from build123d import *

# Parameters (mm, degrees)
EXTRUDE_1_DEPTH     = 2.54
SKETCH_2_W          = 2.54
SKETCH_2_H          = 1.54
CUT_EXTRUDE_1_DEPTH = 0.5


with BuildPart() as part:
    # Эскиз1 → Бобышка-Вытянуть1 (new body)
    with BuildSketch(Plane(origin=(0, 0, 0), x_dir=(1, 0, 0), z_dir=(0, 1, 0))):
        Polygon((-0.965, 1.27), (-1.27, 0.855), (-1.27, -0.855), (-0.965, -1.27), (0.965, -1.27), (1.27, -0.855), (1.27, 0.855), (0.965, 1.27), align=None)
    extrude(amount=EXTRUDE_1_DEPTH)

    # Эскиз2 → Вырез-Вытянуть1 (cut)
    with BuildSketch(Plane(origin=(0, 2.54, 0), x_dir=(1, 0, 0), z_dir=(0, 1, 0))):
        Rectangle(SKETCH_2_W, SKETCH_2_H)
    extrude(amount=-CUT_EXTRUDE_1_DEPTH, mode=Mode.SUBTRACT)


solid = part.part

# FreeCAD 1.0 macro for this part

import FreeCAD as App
import Part
import Sketcher
from FreeCAD import Vector
Q = App.Units.Quantity

doc = App.newDocument("Part")
params = doc.addObject("Spreadsheet::Sheet", "Params")
for row, (alias, value) in enumerate([
    ("sketch1_width", "1.93 mm"),
    ("sketch1_height", "1.71 mm"),
    ("pad1_length", "2.54 mm"),
    ("sketch2_width", "2.54 mm"),
    ("sketch2_height", "1.54 mm"),
    ("pocket1_length", "0.5 mm"),
], start=1):
    params.set(f"A{row}", alias)
    params.set(f"B{row}", "=" + value)
    params.setAlias(f"B{row}", alias)

body = doc.addObject("PartDesign::Body", "Body")

# Sketch on XZ plane
sketch1 = body.newObject("Sketcher::SketchObject", "Sketch")
sketch1.AttachmentSupport = (doc.getObject("XZ_Plane"), [""])
sketch1.MapMode = "FlatFace"
sketch1.addGeometry([
    Part.LineSegment(Vector(-0.965, -1.27, 0), Vector(-1.27, -0.855, 0)),  # 0
    Part.LineSegment(Vector(-1.27, -0.855, 0), Vector(-1.27, 0.855, 0)),  # 1
    Part.LineSegment(Vector(-1.27, 0.855, 0), Vector(-0.965, 1.27, 0)),  # 2
    Part.LineSegment(Vector(-0.965, 1.27, 0), Vector(0.965, 1.27, 0)),  # 3
    Part.LineSegment(Vector(0.965, 1.27, 0), Vector(1.27, 0.855, 0)),  # 4
    Part.LineSegment(Vector(1.27, 0.855, 0), Vector(1.27, -0.855, 0)),  # 5
    Part.LineSegment(Vector(1.27, -0.855, 0), Vector(0.965, -1.27, 0)),  # 6
    Part.LineSegment(Vector(0.965, -1.27, 0), Vector(-0.965, -1.27, 0)),  # 7
], False)
sketch1.addConstraint([
    Sketcher.Constraint("Coincident", 0, 2, 1, 1),
    Sketcher.Constraint("Coincident", 1, 2, 2, 1),
    Sketcher.Constraint("Coincident", 2, 2, 3, 1),
    Sketcher.Constraint("Coincident", 3, 2, 4, 1),
    Sketcher.Constraint("Coincident", 4, 2, 5, 1),
    Sketcher.Constraint("Coincident", 5, 2, 6, 1),
    Sketcher.Constraint("Coincident", 6, 2, 7, 1),
    Sketcher.Constraint("Coincident", 7, 2, 0, 1),
    Sketcher.Constraint("Vertical", 1),
    Sketcher.Constraint("Horizontal", 3),
    Sketcher.Constraint("Vertical", 5),
    Sketcher.Constraint("Horizontal", 7),
    Sketcher.Constraint("Symmetric", 0, 2, 4, 2, -1, 1),
    Sketcher.Constraint("Symmetric", 2, 2, 6, 2, -1, 1),
    Sketcher.Constraint("Parallel", 0, 4),
    Sketcher.Constraint("Parallel", 2, 6),
    Sketcher.Constraint("Horizontal", 1, 2, 4, 2),
    Sketcher.Constraint("Vertical", 3, 2, 6, 2),
    Sketcher.Constraint("DistanceX", 3, 1, 3, 2, Q("1.93 mm")),
    Sketcher.Constraint("DistanceY", 1, 1, 1, 2, Q("1.71 mm")),
    Sketcher.Constraint("DistanceX", 0, 2, -1, 1, Q("1.27 mm")),
    Sketcher.Constraint("DistanceY", -1, 1, 2, 2, Q("1.27 mm")),
])
sketch1.setExpression("Constraints[18]", "Params.sketch1_width")
sketch1.setExpression("Constraints[19]", "Params.sketch1_height")
pad1 = body.newObject("PartDesign::Pad", "Pad")
pad1.Profile = sketch1
pad1.setExpression("Length", "Params.pad1_length")
pad1.Reversed = True

# Sketch on XZ plane
sketch2 = body.newObject("Sketcher::SketchObject", "Sketch001")
sketch2.AttachmentSupport = (doc.getObject("XZ_Plane"), [""])
sketch2.MapMode = "FlatFace"
sketch2.AttachmentOffset = App.Placement(Vector(0, 0, -2.54), App.Rotation())
sketch2.addGeometry([
    Part.LineSegment(Vector(-1.27, -0.77, 0), Vector(-1.27, 0.77, 0)),
    Part.LineSegment(Vector(-1.27, 0.77, 0), Vector(1.27, 0.77, 0)),
    Part.LineSegment(Vector(1.27, 0.77, 0), Vector(1.27, -0.77, 0)),
    Part.LineSegment(Vector(1.27, -0.77, 0), Vector(-1.27, -0.77, 0)),
], False)
sketch2.addConstraint([
    Sketcher.Constraint("Coincident", 0, 2, 1, 1),
    Sketcher.Constraint("Coincident", 1, 2, 2, 1),
    Sketcher.Constraint("Coincident", 2, 2, 3, 1),
    Sketcher.Constraint("Coincident", 3, 2, 0, 1),
    Sketcher.Constraint("Vertical", 0),
    Sketcher.Constraint("Horizontal", 1),
    Sketcher.Constraint("Vertical", 2),
    Sketcher.Constraint("Horizontal", 3),
    Sketcher.Constraint("Symmetric", 0, 2, 2, 2, -1, 1),
    Sketcher.Constraint("DistanceX", 1, 1, 1, 2, Q("2.54 mm")),
    Sketcher.Constraint("DistanceY", 0, 1, 0, 2, Q("1.54 mm")),
])
sketch2.setExpression("Constraints[9]", "Params.sketch2_width")
sketch2.setExpression("Constraints[10]", "Params.sketch2_height")
pocket1 = body.newObject("PartDesign::Pocket", "Pocket")
pocket1.Profile = sketch2
pocket1.setExpression("Length", "Params.pocket1_length")
pocket1.Reversed = True

doc.recompute()
